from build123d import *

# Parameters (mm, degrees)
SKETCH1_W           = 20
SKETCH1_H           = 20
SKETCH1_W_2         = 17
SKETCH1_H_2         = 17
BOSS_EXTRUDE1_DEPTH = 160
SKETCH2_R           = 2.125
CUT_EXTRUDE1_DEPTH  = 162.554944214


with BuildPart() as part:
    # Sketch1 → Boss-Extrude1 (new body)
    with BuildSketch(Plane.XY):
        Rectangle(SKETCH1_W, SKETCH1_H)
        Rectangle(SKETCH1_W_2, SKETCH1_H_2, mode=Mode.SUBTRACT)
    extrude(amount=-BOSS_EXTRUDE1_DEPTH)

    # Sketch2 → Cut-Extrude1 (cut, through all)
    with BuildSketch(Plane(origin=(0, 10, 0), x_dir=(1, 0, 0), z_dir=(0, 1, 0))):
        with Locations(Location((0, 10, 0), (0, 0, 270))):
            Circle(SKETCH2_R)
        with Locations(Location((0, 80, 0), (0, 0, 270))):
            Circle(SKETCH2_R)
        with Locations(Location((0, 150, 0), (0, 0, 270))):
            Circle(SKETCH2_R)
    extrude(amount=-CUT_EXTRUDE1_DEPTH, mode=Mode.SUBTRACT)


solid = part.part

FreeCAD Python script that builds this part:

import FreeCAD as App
import Part
import Sketcher

V = App.Vector
Q = App.Units.Quantity


def add_polygon(sketch, points):
    """Adds a closed chain of lines whose ends are joined by coincident constraints."""
    first, n = sketch.GeometryCount, len(points)
    for a, b in zip(points, points[1:] + points[:1]):
        sketch.addGeometry(Part.LineSegment(App.Vector(*a, 0), App.Vector(*b, 0)), False)
    for i in range(n):
        sketch.addConstraint(Sketcher.Constraint("Coincident", first + i, 2, first + (i + 1) % n, 1))

doc = App.newDocument("Part")
body = doc.addObject("PartDesign::Body", "Body")

sketch1 = body.newObject("Sketcher::SketchObject", "Sketch")
sketch1.AttachmentSupport = (doc.getObject("XY_Plane"), [""])
sketch1.MapMode = "FlatFace"
add_polygon(sketch1, [(-10, 10), (-10, -10), (10, -10), (10, 10)])
add_polygon(sketch1, [(8, -8), (-8, -8), (-8, 8), (8, 8)])
sketch1.addConstraint(Sketcher.Constraint("Vertical", 0))
sketch1.addConstraint(Sketcher.Constraint("Horizontal", 1))
sketch1.addConstraint(Sketcher.Constraint("Vertical", 2))
sketch1.addConstraint(Sketcher.Constraint("Horizontal", 3))
sketch1.addConstraint(Sketcher.Constraint("Horizontal", 4))
sketch1.addConstraint(Sketcher.Constraint("Vertical", 5))
sketch1.addConstraint(Sketcher.Constraint("Horizontal", 6))
sketch1.addConstraint(Sketcher.Constraint("Vertical", 7))
sketch1.addConstraint(Sketcher.Constraint("Symmetric", 0, 2, 2, 2, -1, 1))
sketch1.addConstraint(Sketcher.Constraint("Symmetric", 4, 2, 6, 2, -1, 1))
sketch1.addConstraint(Sketcher.Constraint("Equal", 3, 0))
sketch1.addConstraint(Sketcher.Constraint("Equal", 6, 5))
sketch1.addConstraint(Sketcher.Constraint("DistanceX", 1, 1, 1, 2, Q("20 mm")))
sketch1.addConstraint(Sketcher.Constraint("DistanceX", 4, 2, 4, 1, Q("17 mm")))
pad1 = body.newObject("PartDesign::Pad", "Pad")
pad1.Profile = sketch1
pad1.Length = 160
pad1.Reversed = True

sketch2 = body.newObject("Sketcher::SketchObject", "Sketch001")
sketch2.AttachmentSupport = (doc.getObject("XZ_Plane"), [""])
sketch2.MapMode = "FlatFace"
sketch2.AttachmentOffset = App.Placement(V(0, 0, -10), App.Rotation())
sketch2.addGeometry(Part.Circle(V(0, -10, 0), V(0, 0, 1), 2.1), False)
sketch2.addGeometry(Part.Circle(V(0, -80, 0), V(0, 0, 1), 2.1), False)
sketch2.addGeometry(Part.Circle(V(0, -150, 0), V(0, 0, 1), 2.1), False)
sketch2.addConstraint(Sketcher.Constraint("Equal", 0, 1))
sketch2.addConstraint(Sketcher.Constraint("Equal", 1, 2))
sketch2.addConstraint(Sketcher.Constraint("PointOnObject", 0, 3, -2))
sketch2.addConstraint(Sketcher.Constraint("PointOnObject", 1, 3, -2))
sketch2.addConstraint(Sketcher.Constraint("PointOnObject", 2, 3, -2))
sketch2.addConstraint(Sketcher.Constraint("Diameter", 0, Q("4.25 mm")))
sketch2.addConstraint(Sketcher.Constraint("DistanceY", 0, 3, -1, 1, Q("10 mm")))
sketch2.addConstraint(Sketcher.Constraint("DistanceY", 1, 3, -1, 1, Q("80 mm")))
sketch2.addConstraint(Sketcher.Constraint("DistanceY", 2, 3, -1, 1, Q("150 mm")))
pocket1 = body.newObject("PartDesign::Pocket", "Pocket")
pocket1.Profile = sketch2
pocket1.Type = "ThroughAll"
pocket1.Reversed = True

doc.recompute()
